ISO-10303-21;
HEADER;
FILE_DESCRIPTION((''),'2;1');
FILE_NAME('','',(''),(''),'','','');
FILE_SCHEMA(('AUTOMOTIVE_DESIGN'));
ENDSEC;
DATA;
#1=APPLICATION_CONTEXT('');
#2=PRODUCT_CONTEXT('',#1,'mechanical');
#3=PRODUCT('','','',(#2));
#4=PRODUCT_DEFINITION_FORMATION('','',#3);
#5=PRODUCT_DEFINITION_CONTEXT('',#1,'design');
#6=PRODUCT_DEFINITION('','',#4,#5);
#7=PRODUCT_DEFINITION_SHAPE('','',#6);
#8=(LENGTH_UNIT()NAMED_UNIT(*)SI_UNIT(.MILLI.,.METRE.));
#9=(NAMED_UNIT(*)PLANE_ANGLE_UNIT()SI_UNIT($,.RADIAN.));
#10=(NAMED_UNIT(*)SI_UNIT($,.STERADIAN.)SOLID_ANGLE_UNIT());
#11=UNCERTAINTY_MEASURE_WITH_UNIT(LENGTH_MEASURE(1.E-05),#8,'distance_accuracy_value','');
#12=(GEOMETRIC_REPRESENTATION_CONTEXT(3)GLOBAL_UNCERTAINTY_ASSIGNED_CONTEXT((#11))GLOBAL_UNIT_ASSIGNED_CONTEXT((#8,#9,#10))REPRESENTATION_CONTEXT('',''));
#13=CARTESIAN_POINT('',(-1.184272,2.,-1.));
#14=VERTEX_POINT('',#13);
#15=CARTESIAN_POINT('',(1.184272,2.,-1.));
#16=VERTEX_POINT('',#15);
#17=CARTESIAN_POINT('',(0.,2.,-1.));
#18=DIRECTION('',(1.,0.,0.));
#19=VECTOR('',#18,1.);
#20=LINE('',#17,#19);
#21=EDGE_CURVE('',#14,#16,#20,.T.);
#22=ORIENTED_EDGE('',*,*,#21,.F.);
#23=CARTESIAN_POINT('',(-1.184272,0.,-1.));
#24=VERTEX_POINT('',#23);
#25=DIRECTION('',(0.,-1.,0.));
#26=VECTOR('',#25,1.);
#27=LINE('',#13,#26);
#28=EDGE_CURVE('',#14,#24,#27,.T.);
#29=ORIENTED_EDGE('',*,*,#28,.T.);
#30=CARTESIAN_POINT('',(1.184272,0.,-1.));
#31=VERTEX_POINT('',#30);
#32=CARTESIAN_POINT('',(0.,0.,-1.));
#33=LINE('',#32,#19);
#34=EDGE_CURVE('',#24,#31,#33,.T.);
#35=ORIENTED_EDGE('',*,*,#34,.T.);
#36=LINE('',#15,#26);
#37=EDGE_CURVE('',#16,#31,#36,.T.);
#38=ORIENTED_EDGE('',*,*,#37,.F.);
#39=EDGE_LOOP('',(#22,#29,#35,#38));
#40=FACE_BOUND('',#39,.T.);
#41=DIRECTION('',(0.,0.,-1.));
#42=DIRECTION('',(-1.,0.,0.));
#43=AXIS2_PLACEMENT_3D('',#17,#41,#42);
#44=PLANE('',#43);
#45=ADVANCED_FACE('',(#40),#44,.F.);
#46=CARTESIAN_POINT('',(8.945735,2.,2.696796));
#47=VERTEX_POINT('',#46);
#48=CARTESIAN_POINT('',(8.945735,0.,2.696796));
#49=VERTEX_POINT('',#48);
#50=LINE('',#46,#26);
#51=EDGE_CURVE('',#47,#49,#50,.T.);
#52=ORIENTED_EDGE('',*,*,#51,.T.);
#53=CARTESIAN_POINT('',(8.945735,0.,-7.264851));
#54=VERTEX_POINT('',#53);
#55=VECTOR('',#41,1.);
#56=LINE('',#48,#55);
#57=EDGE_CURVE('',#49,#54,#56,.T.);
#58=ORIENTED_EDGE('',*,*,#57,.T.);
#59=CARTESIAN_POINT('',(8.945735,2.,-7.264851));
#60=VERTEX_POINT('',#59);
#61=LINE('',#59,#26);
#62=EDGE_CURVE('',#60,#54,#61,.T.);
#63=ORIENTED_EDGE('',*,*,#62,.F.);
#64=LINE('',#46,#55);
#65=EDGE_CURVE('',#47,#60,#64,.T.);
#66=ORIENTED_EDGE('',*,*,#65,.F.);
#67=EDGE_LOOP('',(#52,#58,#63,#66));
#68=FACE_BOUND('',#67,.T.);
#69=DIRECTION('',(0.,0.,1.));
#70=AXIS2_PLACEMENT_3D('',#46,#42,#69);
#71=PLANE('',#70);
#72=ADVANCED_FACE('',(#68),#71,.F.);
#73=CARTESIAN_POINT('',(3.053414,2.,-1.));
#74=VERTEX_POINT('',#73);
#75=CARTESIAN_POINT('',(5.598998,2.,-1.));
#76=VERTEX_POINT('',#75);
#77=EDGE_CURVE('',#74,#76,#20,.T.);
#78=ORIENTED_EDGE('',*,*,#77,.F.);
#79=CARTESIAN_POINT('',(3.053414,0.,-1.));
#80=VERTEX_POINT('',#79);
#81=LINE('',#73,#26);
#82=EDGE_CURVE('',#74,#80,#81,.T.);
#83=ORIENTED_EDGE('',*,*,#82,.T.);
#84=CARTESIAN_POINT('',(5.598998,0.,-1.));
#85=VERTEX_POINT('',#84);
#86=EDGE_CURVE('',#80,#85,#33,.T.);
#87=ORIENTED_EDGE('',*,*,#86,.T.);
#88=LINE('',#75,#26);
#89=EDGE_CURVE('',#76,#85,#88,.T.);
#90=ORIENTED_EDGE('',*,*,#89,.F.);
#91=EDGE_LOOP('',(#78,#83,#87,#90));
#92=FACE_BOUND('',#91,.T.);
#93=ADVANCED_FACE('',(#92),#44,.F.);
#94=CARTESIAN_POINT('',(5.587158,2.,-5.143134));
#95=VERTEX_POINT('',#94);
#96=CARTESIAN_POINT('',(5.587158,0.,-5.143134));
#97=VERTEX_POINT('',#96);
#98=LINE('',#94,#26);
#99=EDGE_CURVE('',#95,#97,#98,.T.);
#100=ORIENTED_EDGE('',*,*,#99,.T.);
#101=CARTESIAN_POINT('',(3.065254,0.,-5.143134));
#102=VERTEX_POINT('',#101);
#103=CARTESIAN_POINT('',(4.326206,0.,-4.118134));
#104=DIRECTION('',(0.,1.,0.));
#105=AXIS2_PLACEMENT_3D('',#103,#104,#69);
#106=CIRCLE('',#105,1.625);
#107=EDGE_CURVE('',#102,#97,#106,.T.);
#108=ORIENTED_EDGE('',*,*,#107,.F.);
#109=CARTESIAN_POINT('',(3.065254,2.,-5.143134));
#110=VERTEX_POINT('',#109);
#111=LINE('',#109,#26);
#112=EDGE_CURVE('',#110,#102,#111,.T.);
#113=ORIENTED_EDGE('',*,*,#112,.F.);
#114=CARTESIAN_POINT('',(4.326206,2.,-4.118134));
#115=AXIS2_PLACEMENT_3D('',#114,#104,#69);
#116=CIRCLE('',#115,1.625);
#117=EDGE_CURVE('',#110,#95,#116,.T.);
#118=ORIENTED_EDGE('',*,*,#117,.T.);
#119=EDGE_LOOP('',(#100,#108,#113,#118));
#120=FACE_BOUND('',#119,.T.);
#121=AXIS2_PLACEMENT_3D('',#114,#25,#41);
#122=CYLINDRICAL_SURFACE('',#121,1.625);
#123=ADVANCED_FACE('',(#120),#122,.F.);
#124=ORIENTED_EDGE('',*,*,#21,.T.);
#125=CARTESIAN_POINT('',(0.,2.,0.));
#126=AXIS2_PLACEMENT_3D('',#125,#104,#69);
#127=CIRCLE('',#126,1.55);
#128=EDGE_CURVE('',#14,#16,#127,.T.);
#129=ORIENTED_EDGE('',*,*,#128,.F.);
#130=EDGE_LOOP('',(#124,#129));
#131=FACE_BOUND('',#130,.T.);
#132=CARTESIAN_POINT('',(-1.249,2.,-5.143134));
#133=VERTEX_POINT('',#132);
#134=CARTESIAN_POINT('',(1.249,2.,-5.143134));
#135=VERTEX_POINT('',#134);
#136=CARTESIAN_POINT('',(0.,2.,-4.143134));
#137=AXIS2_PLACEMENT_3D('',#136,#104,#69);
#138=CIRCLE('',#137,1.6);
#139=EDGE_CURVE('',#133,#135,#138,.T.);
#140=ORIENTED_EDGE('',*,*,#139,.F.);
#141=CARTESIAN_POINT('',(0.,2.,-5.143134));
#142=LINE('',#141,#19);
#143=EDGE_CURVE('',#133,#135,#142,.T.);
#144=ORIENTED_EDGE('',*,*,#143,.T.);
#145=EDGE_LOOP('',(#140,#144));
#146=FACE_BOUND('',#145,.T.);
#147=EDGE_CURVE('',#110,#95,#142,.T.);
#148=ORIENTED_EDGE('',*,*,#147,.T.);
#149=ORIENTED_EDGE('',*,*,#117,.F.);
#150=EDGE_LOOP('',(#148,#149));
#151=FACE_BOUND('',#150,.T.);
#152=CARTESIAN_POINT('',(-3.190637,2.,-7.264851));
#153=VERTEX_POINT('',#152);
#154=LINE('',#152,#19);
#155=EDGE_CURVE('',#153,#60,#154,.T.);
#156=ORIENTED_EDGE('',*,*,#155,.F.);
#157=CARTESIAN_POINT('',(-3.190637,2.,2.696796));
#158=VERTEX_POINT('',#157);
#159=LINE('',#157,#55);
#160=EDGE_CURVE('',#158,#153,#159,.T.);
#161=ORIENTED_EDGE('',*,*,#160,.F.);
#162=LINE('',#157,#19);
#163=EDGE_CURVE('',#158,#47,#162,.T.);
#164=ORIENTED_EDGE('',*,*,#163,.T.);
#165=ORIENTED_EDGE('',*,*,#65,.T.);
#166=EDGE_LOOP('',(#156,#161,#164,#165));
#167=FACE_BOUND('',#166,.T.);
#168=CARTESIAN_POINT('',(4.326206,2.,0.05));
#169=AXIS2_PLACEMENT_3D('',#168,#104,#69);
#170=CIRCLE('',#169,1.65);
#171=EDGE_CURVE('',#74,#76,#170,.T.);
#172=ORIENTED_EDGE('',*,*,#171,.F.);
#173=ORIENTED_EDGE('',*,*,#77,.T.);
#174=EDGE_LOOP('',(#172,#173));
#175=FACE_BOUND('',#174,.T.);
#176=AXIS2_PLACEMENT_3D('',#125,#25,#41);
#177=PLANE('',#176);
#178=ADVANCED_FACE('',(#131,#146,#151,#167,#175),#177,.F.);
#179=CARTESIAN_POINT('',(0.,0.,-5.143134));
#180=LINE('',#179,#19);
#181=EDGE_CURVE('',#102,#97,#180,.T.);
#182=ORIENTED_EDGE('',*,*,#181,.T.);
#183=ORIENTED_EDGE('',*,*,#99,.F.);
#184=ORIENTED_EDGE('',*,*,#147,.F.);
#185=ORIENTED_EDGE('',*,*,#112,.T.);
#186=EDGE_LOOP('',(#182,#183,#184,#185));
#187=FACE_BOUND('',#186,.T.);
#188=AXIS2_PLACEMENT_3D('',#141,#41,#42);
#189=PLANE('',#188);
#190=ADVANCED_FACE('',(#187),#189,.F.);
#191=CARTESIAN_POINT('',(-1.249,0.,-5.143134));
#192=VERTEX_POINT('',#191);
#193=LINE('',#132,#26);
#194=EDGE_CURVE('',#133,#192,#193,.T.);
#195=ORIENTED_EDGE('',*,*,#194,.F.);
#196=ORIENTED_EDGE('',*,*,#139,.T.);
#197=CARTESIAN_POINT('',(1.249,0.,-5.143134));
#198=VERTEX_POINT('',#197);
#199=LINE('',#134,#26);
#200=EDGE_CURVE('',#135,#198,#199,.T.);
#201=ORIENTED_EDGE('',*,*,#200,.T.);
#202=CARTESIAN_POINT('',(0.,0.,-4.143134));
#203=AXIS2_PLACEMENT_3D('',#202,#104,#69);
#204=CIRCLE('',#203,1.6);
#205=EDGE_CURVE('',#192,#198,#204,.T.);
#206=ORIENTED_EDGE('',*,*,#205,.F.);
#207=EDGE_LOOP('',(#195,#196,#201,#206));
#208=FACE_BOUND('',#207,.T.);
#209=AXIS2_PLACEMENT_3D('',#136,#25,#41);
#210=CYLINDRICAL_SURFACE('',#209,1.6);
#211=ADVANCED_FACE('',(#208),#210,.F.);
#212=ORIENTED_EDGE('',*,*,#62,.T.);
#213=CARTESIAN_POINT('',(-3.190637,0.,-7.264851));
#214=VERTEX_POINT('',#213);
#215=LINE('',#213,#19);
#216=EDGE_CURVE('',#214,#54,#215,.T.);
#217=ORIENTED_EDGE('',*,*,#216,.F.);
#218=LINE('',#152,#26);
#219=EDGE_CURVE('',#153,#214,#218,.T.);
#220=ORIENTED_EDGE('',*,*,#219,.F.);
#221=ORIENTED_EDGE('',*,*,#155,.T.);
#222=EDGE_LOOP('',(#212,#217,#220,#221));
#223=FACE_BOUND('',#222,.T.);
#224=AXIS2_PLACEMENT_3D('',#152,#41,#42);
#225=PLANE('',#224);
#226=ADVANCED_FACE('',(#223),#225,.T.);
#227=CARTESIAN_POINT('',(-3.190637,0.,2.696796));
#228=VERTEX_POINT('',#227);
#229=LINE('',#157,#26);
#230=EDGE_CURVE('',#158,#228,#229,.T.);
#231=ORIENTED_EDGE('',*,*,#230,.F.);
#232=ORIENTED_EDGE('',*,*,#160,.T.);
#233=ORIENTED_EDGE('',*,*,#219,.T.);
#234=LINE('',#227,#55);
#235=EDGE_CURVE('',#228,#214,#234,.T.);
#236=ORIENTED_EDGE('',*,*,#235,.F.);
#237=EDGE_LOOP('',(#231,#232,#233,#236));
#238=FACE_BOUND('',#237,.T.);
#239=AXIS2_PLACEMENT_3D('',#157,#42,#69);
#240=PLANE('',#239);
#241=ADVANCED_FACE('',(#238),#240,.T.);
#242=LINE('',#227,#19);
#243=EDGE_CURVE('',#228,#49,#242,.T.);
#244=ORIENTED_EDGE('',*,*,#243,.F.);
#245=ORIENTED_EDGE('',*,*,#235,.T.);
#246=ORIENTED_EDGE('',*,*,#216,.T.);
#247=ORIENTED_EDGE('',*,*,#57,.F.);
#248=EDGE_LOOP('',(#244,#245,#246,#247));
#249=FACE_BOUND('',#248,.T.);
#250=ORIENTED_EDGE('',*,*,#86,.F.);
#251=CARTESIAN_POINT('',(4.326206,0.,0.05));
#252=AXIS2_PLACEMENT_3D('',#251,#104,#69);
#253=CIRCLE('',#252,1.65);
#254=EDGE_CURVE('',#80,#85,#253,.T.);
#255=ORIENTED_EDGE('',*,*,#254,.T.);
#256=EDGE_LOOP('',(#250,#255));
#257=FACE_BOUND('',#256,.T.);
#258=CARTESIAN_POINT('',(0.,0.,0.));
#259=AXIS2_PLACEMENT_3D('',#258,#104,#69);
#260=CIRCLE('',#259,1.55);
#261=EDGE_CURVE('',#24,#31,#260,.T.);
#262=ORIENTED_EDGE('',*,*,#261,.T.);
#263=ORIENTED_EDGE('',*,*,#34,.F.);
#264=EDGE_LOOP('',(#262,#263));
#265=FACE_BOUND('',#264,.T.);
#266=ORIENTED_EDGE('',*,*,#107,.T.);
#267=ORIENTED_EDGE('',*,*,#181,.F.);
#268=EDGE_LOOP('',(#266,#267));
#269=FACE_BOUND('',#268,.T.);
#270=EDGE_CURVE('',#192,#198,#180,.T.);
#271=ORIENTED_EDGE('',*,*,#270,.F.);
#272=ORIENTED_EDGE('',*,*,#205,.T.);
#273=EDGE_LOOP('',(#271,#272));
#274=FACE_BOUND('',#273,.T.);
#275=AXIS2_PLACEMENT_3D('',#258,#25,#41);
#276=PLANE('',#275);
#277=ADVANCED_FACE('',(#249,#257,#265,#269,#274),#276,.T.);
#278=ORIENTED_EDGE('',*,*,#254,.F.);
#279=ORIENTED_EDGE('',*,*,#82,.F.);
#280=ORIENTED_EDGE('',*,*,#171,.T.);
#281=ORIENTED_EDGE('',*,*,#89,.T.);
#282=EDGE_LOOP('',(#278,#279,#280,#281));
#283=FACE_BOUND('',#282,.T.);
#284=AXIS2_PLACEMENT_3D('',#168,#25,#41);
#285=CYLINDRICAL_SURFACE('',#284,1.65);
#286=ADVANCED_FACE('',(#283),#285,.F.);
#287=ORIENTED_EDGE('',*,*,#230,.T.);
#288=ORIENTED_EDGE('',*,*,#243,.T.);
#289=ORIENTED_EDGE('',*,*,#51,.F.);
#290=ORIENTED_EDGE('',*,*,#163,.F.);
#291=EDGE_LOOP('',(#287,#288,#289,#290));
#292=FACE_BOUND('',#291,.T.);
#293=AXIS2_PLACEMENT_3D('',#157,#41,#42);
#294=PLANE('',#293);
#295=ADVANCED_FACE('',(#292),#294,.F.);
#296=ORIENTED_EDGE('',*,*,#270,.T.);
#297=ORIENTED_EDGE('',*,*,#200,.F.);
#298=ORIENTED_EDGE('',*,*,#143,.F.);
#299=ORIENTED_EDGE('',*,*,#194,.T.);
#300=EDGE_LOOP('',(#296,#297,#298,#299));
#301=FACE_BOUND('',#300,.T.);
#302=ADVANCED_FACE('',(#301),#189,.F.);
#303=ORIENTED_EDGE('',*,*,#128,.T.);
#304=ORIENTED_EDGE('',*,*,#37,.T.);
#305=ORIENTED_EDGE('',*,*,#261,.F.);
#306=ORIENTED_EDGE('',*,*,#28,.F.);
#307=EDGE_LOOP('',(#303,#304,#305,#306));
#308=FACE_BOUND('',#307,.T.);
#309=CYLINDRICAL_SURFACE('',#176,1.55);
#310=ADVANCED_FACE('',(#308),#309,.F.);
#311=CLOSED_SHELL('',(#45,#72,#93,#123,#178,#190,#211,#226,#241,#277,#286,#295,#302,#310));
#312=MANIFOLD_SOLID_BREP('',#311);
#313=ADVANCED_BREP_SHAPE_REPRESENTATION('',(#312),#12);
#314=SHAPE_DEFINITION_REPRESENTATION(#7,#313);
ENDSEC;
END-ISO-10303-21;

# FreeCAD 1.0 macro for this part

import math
import FreeCAD as App
import Part
import Sketcher
from FreeCAD import Vector
Q = App.Units.Quantity


def add_polygon(sketch, points):
    """Adds a closed chain of lines whose ends are joined by coincident constraints."""
    first, n = sketch.GeometryCount, len(points)
    for a, b in zip(points, points[1:] + points[:1]):
        sketch.addGeometry(Part.LineSegment(App.Vector(*a, 0), App.Vector(*b, 0)), False)
    for i in range(n):
        sketch.addConstraint(Sketcher.Constraint("Coincident", first + i, 2, first + (i + 1) % n, 1))

doc = App.newDocument("Part")
body = doc.addObject("PartDesign::Body", "Body")

# Sketch on XZ plane
sketch1 = doc.addObject("Sketcher::SketchObject", "Sketch")
body.addObject(sketch1)
sketch1.AttachmentSupport = (doc.XZ_Plane, [""])
sketch1.MapMode = "FlatFace"
add_polygon(sketch1, [(-3.2, -7.3), (-3.2, 2.7), (8.9, 2.7), (8.9, -7.3)])  # lines 0-3
sketch1.addGeometry(Part.ArcOfCircle(Part.Circle(Vector(0, 0, 0), Vector(0, 0, 1), 1.6), math.radians(-40), math.radians(220)), False)  # 4
sketch1.addGeometry(Part.LineSegment(Vector(-1.2, -1, 0), Vector(1.2, -1, 0)), False)  # 5
sketch1.addGeometry(Part.ArcOfCircle(Part.Circle(Vector(4.3, 0.1, 0), Vector(0, 0, 1), 1.6), math.radians(-40), math.radians(220)), False)  # 6
sketch1.addGeometry(Part.LineSegment(Vector(3.1, -1, 0), Vector(5.6, -1, 0)), False)  # 7
sketch1.addGeometry(Part.ArcOfCircle(Part.Circle(Vector(0, -4.1, 0), Vector(0, 0, 1), 1.6), math.radians(-39), math.radians(219)), False)  # 8
sketch1.addGeometry(Part.LineSegment(Vector(-1.2, -5.1, 0), Vector(1.2, -5.1, 0)), False)  # 9
sketch1.addGeometry(Part.ArcOfCircle(Part.Circle(Vector(4.3, -4.1, 0), Vector(0, 0, 1), 1.6), math.radians(-39), math.radians(219)), False)  # 10
sketch1.addGeometry(Part.LineSegment(Vector(3.1, -5.1, 0), Vector(5.6, -5.1, 0)), False)  # 11
sketch1.addConstraint(Sketcher.Constraint("Coincident", 4, 1, 5, 2))
sketch1.addConstraint(Sketcher.Constraint("Coincident", 5, 1, 4, 2))
sketch1.addConstraint(Sketcher.Constraint("Coincident", 6, 1, 7, 2))
sketch1.addConstraint(Sketcher.Constraint("Coincident", 7, 1, 6, 2))
sketch1.addConstraint(Sketcher.Constraint("Coincident", 8, 1, 9, 2))
sketch1.addConstraint(Sketcher.Constraint("Coincident", 9, 1, 8, 2))
sketch1.addConstraint(Sketcher.Constraint("Coincident", 10, 1, 11, 2))
sketch1.addConstraint(Sketcher.Constraint("Coincident", 11, 1, 10, 2))
sketch1.addConstraint(Sketcher.Constraint("Vertical", 0))
sketch1.addConstraint(Sketcher.Constraint("Horizontal", 1))
sketch1.addConstraint(Sketcher.Constraint("Vertical", 2))
sketch1.addConstraint(Sketcher.Constraint("Horizontal", 3))
sketch1.addConstraint(Sketcher.Constraint("Horizontal", 5))
sketch1.addConstraint(Sketcher.Constraint("Horizontal", 7))
sketch1.addConstraint(Sketcher.Constraint("Horizontal", 9))
sketch1.addConstraint(Sketcher.Constraint("Horizontal", 11))
sketch1.addConstraint(Sketcher.Constraint("Coincident", 4, 3, -1, 1))
sketch1.addConstraint(Sketcher.Constraint("PointOnObject", 8, 3, -2))
sketch1.addConstraint(Sketcher.Constraint("Horizontal", 5, 1, 6, 1))
sketch1.addConstraint(Sketcher.Constraint("Horizontal", 9, 1, 10, 1))
sketch1.addConstraint(Sketcher.Constraint("Vertical", 6, 3, 10, 3))
sketch1.addConstraint(Sketcher.Constraint("Radius", 8, Q("1.6 mm")))
sketch1.addConstraint(Sketcher.Constraint("Radius", 4, Q("1.55 mm")))
sketch1.addConstraint(Sketcher.Constraint("Radius", 6, Q("1.65 mm")))
sketch1.addConstraint(Sketcher.Constraint("DistanceY", 4, 1, -1, 1, Q("1 mm")))
sketch1.addConstraint(Sketcher.Constraint("Radius", 10, Q("1.625 mm")))
sketch1.addConstraint(Sketcher.Constraint("DistanceY", 8, 1, 8, 3, Q("1 mm")))
sketch1.addConstraint(Sketcher.Constraint("DistanceY", -1, 1, 6, 3, Q("0.05 mm")))
sketch1.addConstraint(Sketcher.Constraint("DistanceX", -1, 1, 6, 1, Q("5.598998 mm")))
sketch1.addConstraint(Sketcher.Constraint("DistanceY", 8, 3, 10, 3, Q("0.025 mm")))
sketch1.addConstraint(Sketcher.Constraint("DistanceX", 1, 1, 1, 2, Q("12.136372 mm")))
sketch1.addConstraint(Sketcher.Constraint("DistanceY", 0, 1, 0, 2, Q("9.961647 mm")))
sketch1.addConstraint(Sketcher.Constraint("DistanceY", 2, 2, -1, 1, Q("7.264851 mm")))
sketch1.addConstraint(Sketcher.Constraint("DistanceY", 8, 3, 0, 2, Q("6.83993 mm")))
sketch1.addConstraint(Sketcher.Constraint("DistanceX", 6, 3, 1, 2, Q("4.619529 mm")))
pad1 = doc.addObject("PartDesign::Pad", "Pad")
body.addObject(pad1)
pad1.Profile = sketch1
pad1.Length = 2
pad1.Reversed = True

doc.recompute()
